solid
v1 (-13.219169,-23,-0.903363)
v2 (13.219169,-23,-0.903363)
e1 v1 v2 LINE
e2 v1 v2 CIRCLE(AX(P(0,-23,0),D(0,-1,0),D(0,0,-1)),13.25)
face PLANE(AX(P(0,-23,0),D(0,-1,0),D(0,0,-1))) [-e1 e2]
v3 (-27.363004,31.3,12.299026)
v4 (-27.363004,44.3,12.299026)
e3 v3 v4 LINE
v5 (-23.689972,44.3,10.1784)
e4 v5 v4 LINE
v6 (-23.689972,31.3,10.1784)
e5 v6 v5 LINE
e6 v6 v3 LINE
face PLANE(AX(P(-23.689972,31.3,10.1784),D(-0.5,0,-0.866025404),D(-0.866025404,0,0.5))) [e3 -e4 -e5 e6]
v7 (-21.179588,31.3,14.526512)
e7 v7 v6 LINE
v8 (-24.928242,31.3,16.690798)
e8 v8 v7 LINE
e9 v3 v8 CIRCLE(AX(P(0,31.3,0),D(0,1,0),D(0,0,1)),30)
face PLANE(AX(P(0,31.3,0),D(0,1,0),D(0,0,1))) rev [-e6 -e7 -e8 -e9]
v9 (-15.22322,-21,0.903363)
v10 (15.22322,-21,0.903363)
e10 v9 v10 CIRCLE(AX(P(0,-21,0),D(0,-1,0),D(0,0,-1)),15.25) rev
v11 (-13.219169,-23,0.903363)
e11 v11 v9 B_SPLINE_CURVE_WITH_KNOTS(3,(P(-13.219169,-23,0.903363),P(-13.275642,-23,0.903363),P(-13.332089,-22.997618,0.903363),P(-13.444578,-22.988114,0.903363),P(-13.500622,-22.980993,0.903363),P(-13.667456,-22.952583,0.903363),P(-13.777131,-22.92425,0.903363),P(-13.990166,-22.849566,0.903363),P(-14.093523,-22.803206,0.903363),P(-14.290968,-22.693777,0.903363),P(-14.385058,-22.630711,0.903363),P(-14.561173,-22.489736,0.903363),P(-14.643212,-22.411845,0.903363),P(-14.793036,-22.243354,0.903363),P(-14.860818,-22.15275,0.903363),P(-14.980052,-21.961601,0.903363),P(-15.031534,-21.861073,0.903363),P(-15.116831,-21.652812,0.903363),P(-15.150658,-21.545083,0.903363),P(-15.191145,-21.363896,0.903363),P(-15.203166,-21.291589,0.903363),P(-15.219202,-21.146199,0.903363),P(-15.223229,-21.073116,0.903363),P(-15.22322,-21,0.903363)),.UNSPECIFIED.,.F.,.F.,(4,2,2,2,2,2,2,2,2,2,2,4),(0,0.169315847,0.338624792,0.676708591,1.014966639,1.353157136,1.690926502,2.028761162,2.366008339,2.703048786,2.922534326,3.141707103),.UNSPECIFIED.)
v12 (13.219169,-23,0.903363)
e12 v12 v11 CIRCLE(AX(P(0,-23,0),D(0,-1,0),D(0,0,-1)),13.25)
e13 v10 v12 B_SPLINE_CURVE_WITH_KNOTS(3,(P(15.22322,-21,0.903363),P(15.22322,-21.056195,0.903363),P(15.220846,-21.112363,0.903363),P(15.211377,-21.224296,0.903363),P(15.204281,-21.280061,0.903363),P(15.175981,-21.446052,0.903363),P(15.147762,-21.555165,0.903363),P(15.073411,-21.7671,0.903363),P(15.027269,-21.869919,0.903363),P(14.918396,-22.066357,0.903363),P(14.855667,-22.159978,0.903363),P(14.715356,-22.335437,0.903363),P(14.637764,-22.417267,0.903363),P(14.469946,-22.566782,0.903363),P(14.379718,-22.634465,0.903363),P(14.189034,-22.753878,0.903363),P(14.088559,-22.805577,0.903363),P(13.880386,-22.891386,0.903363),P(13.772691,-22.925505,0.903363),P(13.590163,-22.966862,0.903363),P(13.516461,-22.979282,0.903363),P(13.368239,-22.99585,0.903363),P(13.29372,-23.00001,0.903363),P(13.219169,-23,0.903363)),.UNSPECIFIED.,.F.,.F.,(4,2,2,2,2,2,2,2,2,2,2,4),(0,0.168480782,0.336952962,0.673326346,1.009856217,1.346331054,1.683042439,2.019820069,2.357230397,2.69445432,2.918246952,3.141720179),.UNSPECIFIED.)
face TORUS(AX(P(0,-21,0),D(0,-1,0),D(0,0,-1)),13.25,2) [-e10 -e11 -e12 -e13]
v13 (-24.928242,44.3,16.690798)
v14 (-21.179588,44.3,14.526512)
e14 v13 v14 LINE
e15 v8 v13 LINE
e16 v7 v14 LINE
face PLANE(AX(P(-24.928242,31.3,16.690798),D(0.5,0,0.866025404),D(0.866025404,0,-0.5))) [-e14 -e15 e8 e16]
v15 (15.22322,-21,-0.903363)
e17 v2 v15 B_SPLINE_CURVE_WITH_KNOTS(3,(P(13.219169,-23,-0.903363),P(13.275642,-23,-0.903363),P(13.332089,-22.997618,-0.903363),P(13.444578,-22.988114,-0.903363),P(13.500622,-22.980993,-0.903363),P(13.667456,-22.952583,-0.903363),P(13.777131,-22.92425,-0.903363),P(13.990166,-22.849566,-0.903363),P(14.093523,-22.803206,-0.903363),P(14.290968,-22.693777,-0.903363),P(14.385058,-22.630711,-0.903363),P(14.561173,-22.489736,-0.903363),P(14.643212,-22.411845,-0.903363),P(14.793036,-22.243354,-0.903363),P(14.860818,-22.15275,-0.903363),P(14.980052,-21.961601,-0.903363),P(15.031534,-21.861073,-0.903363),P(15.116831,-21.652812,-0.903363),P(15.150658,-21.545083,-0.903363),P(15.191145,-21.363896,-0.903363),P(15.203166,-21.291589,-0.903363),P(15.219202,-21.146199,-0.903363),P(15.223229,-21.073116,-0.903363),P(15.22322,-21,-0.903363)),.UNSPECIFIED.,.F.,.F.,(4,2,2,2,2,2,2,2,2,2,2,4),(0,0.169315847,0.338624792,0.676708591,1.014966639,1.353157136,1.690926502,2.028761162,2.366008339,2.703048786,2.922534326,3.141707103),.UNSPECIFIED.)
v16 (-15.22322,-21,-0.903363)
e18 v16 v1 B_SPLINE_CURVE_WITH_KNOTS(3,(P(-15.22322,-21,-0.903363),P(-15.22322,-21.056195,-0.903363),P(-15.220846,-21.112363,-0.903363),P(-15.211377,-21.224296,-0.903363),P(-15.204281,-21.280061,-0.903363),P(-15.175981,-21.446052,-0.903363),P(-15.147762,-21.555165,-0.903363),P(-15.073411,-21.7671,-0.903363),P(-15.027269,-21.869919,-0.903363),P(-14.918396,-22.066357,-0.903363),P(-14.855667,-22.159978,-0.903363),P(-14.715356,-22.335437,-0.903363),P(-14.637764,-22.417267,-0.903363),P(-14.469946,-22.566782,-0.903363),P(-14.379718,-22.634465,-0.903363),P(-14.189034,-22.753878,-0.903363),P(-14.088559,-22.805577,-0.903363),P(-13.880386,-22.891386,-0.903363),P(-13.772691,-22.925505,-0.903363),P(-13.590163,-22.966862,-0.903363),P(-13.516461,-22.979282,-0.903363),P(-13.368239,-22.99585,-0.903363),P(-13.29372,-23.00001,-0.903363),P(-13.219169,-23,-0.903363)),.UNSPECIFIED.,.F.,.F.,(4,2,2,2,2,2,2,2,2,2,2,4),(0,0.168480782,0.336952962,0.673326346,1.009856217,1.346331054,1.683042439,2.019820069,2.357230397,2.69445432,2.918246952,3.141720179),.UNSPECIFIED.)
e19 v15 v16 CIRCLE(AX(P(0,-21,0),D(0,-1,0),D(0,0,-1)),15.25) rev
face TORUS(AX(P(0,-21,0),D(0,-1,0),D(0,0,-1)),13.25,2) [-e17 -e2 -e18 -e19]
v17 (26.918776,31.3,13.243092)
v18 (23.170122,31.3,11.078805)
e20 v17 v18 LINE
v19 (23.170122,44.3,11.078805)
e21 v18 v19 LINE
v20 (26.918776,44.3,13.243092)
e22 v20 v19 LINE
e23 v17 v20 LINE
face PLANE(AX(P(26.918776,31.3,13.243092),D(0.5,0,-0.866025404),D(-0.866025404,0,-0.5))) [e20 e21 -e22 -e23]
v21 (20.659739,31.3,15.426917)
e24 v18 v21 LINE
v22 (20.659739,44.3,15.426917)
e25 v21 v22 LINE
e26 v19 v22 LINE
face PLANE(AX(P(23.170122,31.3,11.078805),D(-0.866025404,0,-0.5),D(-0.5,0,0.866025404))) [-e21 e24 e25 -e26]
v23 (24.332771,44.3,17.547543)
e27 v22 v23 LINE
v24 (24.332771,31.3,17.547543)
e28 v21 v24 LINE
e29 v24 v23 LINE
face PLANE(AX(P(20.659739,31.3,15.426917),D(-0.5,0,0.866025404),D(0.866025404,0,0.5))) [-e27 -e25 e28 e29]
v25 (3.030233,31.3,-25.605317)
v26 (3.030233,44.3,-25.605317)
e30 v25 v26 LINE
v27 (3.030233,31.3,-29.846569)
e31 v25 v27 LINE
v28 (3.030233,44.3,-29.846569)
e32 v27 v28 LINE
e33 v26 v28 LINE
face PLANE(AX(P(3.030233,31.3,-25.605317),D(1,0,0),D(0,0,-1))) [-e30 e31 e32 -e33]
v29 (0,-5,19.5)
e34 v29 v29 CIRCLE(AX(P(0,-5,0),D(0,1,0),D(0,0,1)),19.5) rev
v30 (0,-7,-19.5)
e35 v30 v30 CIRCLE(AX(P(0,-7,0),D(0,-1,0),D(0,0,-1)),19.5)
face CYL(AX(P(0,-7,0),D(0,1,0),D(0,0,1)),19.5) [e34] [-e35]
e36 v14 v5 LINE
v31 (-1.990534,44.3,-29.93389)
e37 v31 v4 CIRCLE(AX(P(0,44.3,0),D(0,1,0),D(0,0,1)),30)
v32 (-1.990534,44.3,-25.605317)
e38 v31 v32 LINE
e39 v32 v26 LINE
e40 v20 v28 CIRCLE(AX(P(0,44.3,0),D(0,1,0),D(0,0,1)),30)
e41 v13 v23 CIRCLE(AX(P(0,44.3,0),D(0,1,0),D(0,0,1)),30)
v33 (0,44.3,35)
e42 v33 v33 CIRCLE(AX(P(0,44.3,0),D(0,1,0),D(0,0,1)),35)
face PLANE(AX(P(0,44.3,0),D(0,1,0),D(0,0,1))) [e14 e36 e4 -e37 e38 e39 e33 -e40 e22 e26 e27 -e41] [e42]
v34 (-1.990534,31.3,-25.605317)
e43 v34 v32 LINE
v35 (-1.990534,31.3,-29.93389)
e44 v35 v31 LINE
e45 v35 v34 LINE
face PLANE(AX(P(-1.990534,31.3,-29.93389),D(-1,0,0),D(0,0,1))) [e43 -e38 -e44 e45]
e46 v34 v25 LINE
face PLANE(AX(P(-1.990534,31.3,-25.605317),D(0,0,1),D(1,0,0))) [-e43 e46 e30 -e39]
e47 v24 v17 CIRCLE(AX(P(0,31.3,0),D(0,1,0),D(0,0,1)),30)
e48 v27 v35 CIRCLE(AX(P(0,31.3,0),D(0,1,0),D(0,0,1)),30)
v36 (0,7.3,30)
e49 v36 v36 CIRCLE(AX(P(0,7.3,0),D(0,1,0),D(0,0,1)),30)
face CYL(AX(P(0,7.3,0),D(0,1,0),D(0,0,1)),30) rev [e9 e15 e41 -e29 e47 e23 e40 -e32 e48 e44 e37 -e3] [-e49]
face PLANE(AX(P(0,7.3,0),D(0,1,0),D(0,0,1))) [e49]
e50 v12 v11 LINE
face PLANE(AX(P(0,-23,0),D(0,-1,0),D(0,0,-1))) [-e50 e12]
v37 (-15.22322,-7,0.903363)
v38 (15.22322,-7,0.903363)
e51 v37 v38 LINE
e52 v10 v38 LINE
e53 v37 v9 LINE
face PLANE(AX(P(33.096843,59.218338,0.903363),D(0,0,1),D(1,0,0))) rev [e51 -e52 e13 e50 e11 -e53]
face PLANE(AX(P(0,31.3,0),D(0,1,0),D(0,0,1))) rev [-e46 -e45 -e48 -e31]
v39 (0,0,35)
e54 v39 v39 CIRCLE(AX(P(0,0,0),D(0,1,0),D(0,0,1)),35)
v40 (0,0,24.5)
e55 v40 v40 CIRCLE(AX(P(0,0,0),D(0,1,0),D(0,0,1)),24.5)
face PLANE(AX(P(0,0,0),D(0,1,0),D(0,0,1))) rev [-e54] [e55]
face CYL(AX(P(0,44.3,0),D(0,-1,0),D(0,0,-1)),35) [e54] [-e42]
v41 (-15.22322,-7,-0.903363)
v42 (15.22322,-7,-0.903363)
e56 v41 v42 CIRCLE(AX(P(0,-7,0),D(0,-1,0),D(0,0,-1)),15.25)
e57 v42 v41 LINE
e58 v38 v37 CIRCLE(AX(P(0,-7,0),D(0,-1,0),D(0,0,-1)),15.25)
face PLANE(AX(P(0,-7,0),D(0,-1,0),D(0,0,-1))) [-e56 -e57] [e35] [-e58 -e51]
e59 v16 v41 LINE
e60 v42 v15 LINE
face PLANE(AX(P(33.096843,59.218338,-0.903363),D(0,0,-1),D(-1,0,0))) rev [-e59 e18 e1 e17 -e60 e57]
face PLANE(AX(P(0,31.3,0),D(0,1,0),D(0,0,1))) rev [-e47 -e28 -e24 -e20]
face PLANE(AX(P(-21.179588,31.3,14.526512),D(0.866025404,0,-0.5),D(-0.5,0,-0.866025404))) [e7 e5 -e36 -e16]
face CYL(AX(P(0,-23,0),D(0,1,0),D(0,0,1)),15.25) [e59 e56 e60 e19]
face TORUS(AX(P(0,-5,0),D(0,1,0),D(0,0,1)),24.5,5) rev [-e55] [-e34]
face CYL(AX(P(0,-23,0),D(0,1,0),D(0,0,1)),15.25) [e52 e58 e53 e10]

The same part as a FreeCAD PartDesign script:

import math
import FreeCAD as App
import Part
import Sketcher
from FreeCAD import Vector
Q = App.Units.Quantity


def edges_at(feature, points):
    """Names of the edges that pass closest to the given points."""
    edges = feature.Shape.Edges
    near = lambda p: min(range(len(edges)), key=lambda i: edges[i].distToShape(Part.Vertex(*p))[0])
    return sorted({f"Edge{near(p) + 1}" for p in points})


def add_polygon(sketch, points):
    """Adds a closed chain of lines whose ends are joined by coincident constraints."""
    first, n = sketch.GeometryCount, len(points)
    for a, b in zip(points, points[1:] + points[:1]):
        sketch.addGeometry(Part.LineSegment(App.Vector(*a, 0), App.Vector(*b, 0)), False)
    for i in range(n):
        sketch.addConstraint(Sketcher.Constraint("Coincident", first + i, 2, first + (i + 1) % n, 1))

doc = App.newDocument("Part")
body = doc.addObject("PartDesign::Body", "Body")

# Sketch on XZ plane
sketch1 = body.newObject("Sketcher::SketchObject", "Sketch")
sketch1.AttachmentSupport = (doc.getObject("XZ_Plane"), [""])
sketch1.MapMode = "FlatFace"
sketch1.addGeometry(Part.Circle(Vector(0, 0, 0), Vector(0, 0, 1), 35), False)
sketch1.addConstraint([
    Sketcher.Constraint("Coincident", 0, 3, -1, 1),
    Sketcher.Constraint("Diameter", 0, 70.0),
])
pad1 = body.newObject("PartDesign::Pad", "Pad")
pad1.Profile = sketch1
pad1.Length = 44.3
pad1.Reversed = True

# Sketch on XZ plane
sketch2 = body.newObject("Sketcher::SketchObject", "Sketch001")
sketch2.AttachmentSupport = (doc.getObject("XZ_Plane"), [""])
sketch2.MapMode = "FlatFace"
sketch2.AttachmentOffset = App.Placement(Vector(0, 0, -44.3), App.Rotation())
sketch2.addGeometry(Part.Circle(Vector(0, 0, 0), Vector(0, 0, 1), 30), False)
sketch2.addConstraint([
    Sketcher.Constraint("Coincident", 0, 3, -1, 1),
    Sketcher.Constraint("Diameter", 0, 60.0),
])
pocket1 = body.newObject("PartDesign::Pocket", "Pocket")
pocket1.Profile = sketch2
pocket1.Length = 37
pocket1.Reversed = True

# Sketch on XZ plane
sketch3 = body.newObject("Sketcher::SketchObject", "Sketch002")
sketch3.AttachmentSupport = (doc.getObject("XZ_Plane"), [""])
sketch3.MapMode = "FlatFace"
sketch3.addGeometry(Part.Circle(Vector(0, 0, 0), Vector(0, 0, 1), 19.5), False)
sketch3.addConstraint([
    Sketcher.Constraint("Coincident", 0, 3, -1, 1),
    Sketcher.Constraint("Diameter", 0, 39.0),
])
pad2 = body.newObject("PartDesign::Pad", "Pad001")
pad2.Profile = sketch3
pad2.Length = 7

# Sketch on XZ plane
sketch4 = body.newObject("Sketcher::SketchObject", "Sketch003")
sketch4.AttachmentSupport = (doc.getObject("XZ_Plane"), [""])
sketch4.MapMode = "FlatFace"
sketch4.AttachmentOffset = App.Placement(Vector(0, 0, 7), App.Rotation())
sketch4.addGeometry(Part.Circle(Vector(0, 0, 0), Vector(0, 0, 1), 15.25), False)
sketch4.addConstraint([
    Sketcher.Constraint("Coincident", 0, 3, -1, 1),
    Sketcher.Constraint("Diameter", 0, 30.5),
])
pad3 = body.newObject("PartDesign::Pad", "Pad002")
pad3.Profile = sketch4
pad3.Length = 16
doc.recompute()

fillet = body.newObject("PartDesign::Fillet", "Fillet")
fillet.Base = (pad3, edges_at(pad3, [(0, 0, 19.5)]))
fillet.Radius = 5

# Sketch on XZ plane
sketch5 = body.newObject("Sketcher::SketchObject", "Sketch004")
sketch5.AttachmentSupport = (doc.getObject("XZ_Plane"), [""])
sketch5.MapMode = "FlatFace"
sketch5.AttachmentOffset = App.Placement(Vector(0, 0, -44.3), App.Rotation())
sketch5.addGeometry([
    Part.LineSegment(Vector(-1.990534, -29.93389, 0), Vector(-1.990534, -25.605317, 0)),  # 0
    Part.LineSegment(Vector(-1.990534, -25.605317, 0), Vector(3.030233, -25.605317, 0)),  # 1
    Part.LineSegment(Vector(3.030233, -25.605317, 0), Vector(3.030233, -29.846569, 0)),  # 2
    Part.ArcOfCircle(Part.Circle(Vector(0, 0, 0), Vector(0, 0, 1), 30), math.radians(-93.804435), math.radians(-84.202795)),  # 3
    Part.LineSegment(Vector(26.918776, 13.243092, 0), Vector(23.170122, 11.078805, 0)),  # 4
    Part.LineSegment(Vector(23.170122, 11.078805, 0), Vector(20.659739, 15.426917, 0)),  # 5
    Part.LineSegment(Vector(20.659739, 15.426917, 0), Vector(24.332771, 17.547543, 0)),  # 6
    Part.ArcOfCircle(Part.Circle(Vector(0, 0, 0), Vector(0, 0, 1), 30), math.radians(26.195565), math.radians(35.797205)),  # 7
    Part.LineSegment(Vector(-24.928242, 16.690798, 0), Vector(-21.179588, 14.526512, 0)),  # 8
    Part.LineSegment(Vector(-21.179588, 14.526512, 0), Vector(-23.689972, 10.1784, 0)),  # 9
    Part.LineSegment(Vector(-23.689972, 10.1784, 0), Vector(-27.363004, 12.299026, 0)),  # 10
    Part.ArcOfCircle(Part.Circle(Vector(0, 0, 0), Vector(0, 0, 1), 30), math.radians(146.195565), math.radians(155.797205)),  # 11
], False)
sketch5.addConstraint([
    Sketcher.Constraint("Coincident", 0, 2, 1, 1),
    Sketcher.Constraint("Coincident", 1, 2, 2, 1),
    Sketcher.Constraint("Coincident", 2, 2, 3, 2),
    Sketcher.Constraint("Coincident", 3, 1, 0, 1),
    Sketcher.Constraint("Coincident", 4, 2, 5, 1),
    Sketcher.Constraint("Coincident", 5, 2, 6, 1),
    Sketcher.Constraint("Coincident", 6, 2, 7, 2),
    Sketcher.Constraint("Coincident", 7, 1, 4, 1),
    Sketcher.Constraint("Coincident", 8, 2, 9, 1),
    Sketcher.Constraint("Coincident", 9, 2, 10, 1),
    Sketcher.Constraint("Coincident", 10, 2, 11, 2),
    Sketcher.Constraint("Coincident", 11, 1, 8, 1),
    Sketcher.Constraint("Vertical", 0),
    Sketcher.Constraint("Horizontal", 1),
    Sketcher.Constraint("Vertical", 2),
    Sketcher.Constraint("Coincident", 3, 3, -1, 1),
    Sketcher.Constraint("Coincident", 7, 3, -1, 1),
    Sketcher.Constraint("Coincident", 11, 3, -1, 1),
    Sketcher.Constraint("Equal", 3, 7),
    Sketcher.Constraint("Equal", 7, 11),
    Sketcher.Constraint("Perpendicular", 4, 5),
    Sketcher.Constraint("Perpendicular", 5, 6),
    Sketcher.Constraint("Perpendicular", 8, 9),
    Sketcher.Constraint("Perpendicular", 9, 10),
    Sketcher.Constraint("Equal", 4, 8),
    Sketcher.Constraint("Equal", 5, 9),
    Sketcher.Constraint("Equal", 6, 10),
    Sketcher.Constraint("Radius", 3, 30.0),
    Sketcher.Constraint("Angle", 4, Q("-150 deg")),
    Sketcher.Constraint("Angle", 8, Q("-30 deg")),
    Sketcher.Constraint("DistanceY", -1, 1, 9, 2, 10.1784),
    Sketcher.Constraint("DistanceY", -1, 1, 11, 1, 16.690798),
    Sketcher.Constraint("DistanceX", 1, 1, 1, 2, 5.020767),
    Sketcher.Constraint("DistanceY", 0, 1, 0, 2, 4.328573),
    Sketcher.Constraint("DistanceY", 2, 2, 2, 1, 4.241252),
    Sketcher.Constraint("DistanceX", -1, 1, 5, 2, 20.659739),
])
pad4 = body.newObject("PartDesign::Pad", "Pad003")
pad4.Profile = sketch5
pad4.Length = 13

# Sketch on XZ plane
sketch6 = body.newObject("Sketcher::SketchObject", "Sketch005")
sketch6.AttachmentSupport = (doc.getObject("XZ_Plane"), [""])
sketch6.MapMode = "FlatFace"
sketch6.AttachmentOffset = App.Placement(Vector(0, 0, 23), App.Rotation())
add_polygon(sketch6, [(-33.096843, 0.903363), (-33.096843, -0.903363), (33.096843, -0.903363), (33.096843, 0.903363)])  # lines 0-3
sketch6.addConstraint([
    Sketcher.Constraint("Vertical", 0),
    Sketcher.Constraint("Horizontal", 1),
    Sketcher.Constraint("Vertical", 2),
    Sketcher.Constraint("Horizontal", 3),
    Sketcher.Constraint("Symmetric", 0, 2, 2, 2, -1, 1),
    Sketcher.Constraint("DistanceX", 1, 1, 1, 2, 66.193685),
    Sketcher.Constraint("DistanceY", 0, 2, 0, 1, 1.806727),
])
pocket2 = body.newObject("PartDesign::Pocket", "Pocket001")
pocket2.Profile = sketch6
pocket2.Length = 16
doc.recompute()

fillet2 = body.newObject("PartDesign::Fillet", "Fillet001")
fillet2.Base = (pocket2, edges_at(pocket2, [(0, -23, 15.25), (0, -23, -15.25)]))
fillet2.Radius = 2

doc.recompute()
